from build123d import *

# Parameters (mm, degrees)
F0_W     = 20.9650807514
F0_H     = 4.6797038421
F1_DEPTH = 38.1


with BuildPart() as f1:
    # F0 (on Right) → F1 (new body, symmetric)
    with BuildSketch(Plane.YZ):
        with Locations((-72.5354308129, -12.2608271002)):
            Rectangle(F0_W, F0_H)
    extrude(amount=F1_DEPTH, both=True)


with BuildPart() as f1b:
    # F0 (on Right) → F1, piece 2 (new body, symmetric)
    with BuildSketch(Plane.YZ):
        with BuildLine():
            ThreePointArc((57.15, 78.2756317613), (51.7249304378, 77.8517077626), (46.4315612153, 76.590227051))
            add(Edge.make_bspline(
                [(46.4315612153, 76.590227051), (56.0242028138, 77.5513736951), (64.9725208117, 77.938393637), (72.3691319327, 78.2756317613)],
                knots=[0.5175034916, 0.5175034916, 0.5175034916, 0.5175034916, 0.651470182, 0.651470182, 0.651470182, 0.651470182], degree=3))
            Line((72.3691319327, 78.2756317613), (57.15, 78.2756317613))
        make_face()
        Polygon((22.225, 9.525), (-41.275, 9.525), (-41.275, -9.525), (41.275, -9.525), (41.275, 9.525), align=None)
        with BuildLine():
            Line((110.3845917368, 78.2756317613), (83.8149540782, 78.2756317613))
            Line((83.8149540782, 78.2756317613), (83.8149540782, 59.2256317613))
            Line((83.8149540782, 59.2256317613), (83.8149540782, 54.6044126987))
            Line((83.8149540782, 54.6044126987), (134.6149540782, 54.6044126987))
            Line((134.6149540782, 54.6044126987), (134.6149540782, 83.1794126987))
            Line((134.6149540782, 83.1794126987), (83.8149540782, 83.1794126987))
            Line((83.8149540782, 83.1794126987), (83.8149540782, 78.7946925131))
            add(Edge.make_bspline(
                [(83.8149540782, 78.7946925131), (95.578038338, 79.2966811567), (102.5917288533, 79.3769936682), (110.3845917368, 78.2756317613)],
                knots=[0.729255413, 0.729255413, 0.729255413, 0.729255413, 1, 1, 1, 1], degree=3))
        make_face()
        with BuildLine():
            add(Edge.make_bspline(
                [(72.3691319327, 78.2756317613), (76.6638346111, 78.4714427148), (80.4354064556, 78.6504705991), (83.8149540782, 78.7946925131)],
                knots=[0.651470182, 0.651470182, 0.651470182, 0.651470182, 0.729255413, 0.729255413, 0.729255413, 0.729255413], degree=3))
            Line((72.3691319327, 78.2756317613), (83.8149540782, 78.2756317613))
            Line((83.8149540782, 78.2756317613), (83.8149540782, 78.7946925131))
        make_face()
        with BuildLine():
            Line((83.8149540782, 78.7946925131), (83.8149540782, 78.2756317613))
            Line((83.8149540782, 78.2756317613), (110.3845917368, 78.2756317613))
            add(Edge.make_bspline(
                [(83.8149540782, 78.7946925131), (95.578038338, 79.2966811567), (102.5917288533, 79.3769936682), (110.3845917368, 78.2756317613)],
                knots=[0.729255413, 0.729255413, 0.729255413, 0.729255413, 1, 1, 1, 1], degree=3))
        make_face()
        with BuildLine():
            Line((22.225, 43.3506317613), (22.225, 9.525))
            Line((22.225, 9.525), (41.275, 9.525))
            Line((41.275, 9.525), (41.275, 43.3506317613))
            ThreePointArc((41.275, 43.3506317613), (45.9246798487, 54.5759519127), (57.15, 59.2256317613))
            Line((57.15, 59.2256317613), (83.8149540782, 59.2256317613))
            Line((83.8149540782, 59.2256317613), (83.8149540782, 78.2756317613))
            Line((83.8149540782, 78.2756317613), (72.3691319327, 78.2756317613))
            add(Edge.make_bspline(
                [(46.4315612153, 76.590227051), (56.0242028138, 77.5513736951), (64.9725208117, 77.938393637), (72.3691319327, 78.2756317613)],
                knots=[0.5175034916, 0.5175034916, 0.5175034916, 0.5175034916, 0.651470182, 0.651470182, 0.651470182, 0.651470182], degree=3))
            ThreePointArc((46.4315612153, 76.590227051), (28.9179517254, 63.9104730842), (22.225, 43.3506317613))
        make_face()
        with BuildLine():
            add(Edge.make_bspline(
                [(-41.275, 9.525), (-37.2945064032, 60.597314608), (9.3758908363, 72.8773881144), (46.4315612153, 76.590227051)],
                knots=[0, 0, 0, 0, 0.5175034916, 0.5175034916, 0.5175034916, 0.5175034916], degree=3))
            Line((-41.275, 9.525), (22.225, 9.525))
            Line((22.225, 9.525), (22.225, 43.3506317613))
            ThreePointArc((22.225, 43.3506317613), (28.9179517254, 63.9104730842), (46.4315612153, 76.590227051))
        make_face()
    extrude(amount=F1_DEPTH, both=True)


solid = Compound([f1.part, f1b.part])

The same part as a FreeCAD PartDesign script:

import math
import FreeCAD as App
import Part
import Sketcher

V = App.Vector
Q = App.Units.Quantity

doc = App.newDocument("Part")
body = doc.addObject("PartDesign::Body", "Body")

# Sketch on YZ plane
sketch1 = body.newObject("Sketcher::SketchObject", "Sketch")
sketch1.AttachmentSupport = (doc.getObject("YZ_Plane"), [""])
sketch1.MapMode = "FlatFace"
sketch1.addGeometry([
    Part.LineSegment(V(-83, -9.9, 0), V(-83, -14.6, 0)),
    Part.LineSegment(V(-83, -14.6, 0), V(-62.1, -14.6, 0)),
    Part.LineSegment(V(-62.1, -14.6, 0), V(-62.1, -9.9, 0)),
    Part.LineSegment(V(-62.1, -9.9, 0), V(-83, -9.9, 0)),
], False)
sketch1.addConstraint([
    Sketcher.Constraint("Coincident", 0, 2, 1, 1),
    Sketcher.Constraint("Coincident", 1, 2, 2, 1),
    Sketcher.Constraint("Coincident", 2, 2, 3, 1),
    Sketcher.Constraint("Coincident", 3, 2, 0, 1),
    Sketcher.Constraint("Vertical", 0),
    Sketcher.Constraint("Horizontal", 1),
    Sketcher.Constraint("Vertical", 2),
    Sketcher.Constraint("Horizontal", 3),
    Sketcher.Constraint("DistanceX", 1, 1, 1, 2, Q("20.965081 mm")),
    Sketcher.Constraint("DistanceY", 0, 2, 0, 1, Q("4.679704 mm")),
    Sketcher.Constraint("DistanceX", 0, 2, -1, 1, Q("83.017971 mm")),
    Sketcher.Constraint("DistanceY", 0, 2, -1, 1, Q("14.600679 mm")),
])
pad1 = body.newObject("PartDesign::Pad", "Pad")
pad1.Profile = sketch1
pad1.Length = Q("3 in")
pad1.Midplane = True
body2 = doc.addObject("PartDesign::Body", "Body001")

# Sketch on YZ plane
sketch2 = body2.newObject("Sketcher::SketchObject", "Sketch001")
sketch2.AttachmentSupport = (doc.getObject("YZ_Plane001"), [""])
sketch2.MapMode = "FlatFace"
sketch2.addGeometry([
    Part.LineSegment(V(72.369132, 78.275632, 0), V(57.15, 78.275632, 0)),  # 0
    Part.ArcOfCircle(Part.Circle(V(57.15, 43.350632, 0), V(0, 0, 1), 34.925), math.radians(90), math.radians(107.872434)),  # 1
    Part.BSplineCurve([V(-41.275, 9.525, 0), V(-37.294506, 60.597315, 0), V(9.375891, 72.877388, 0), V(46.431561, 76.590227, 0)], [4, 4], [0, 0.517503492], False, 3, [1, 1, 1, 1], False),  # 2
    Part.LineSegment(V(-41.275, 9.525, 0), V(-41.275, -9.525, 0)),  # 3
    Part.LineSegment(V(-41.275, -9.525, 0), V(41.275, -9.525, 0)),  # 4
    Part.LineSegment(V(41.275, -9.525, 0), V(41.275, 43.350632, 0)),  # 5
    Part.ArcOfCircle(Part.Circle(V(57.15, 43.350632, 0), V(0, 0, 1), 15.875), math.radians(90), math.radians(180)),  # 6
    Part.LineSegment(V(57.15, 59.225632, 0), V(83.814954, 59.225632, 0)),  # 7
    Part.LineSegment(V(83.814954, 59.225632, 0), V(83.814954, 54.604413, 0)),  # 8
    Part.LineSegment(V(83.814954, 54.604413, 0), V(134.614954, 54.604413, 0)),  # 9
    Part.LineSegment(V(134.614954, 54.604413, 0), V(134.614954, 83.179413, 0)),  # 10
    Part.LineSegment(V(134.614954, 83.179413, 0), V(83.814954, 83.179413, 0)),  # 11
    Part.LineSegment(V(83.814954, 83.179413, 0), V(83.814954, 78.794693, 0)),  # 12
    Part.BSplineCurve([V(72.369132, 78.275632, 0), V(76.663835, 78.471443, 0), V(80.435406, 78.650471, 0), V(83.814954, 78.794693, 0)], [4, 4], [0.651470182, 0.729255413], False, 3, [1, 1, 1, 1], False),  # 13
], False)
sketch2.addConstraint([
    Sketcher.Constraint("Block", 2),
    Sketcher.Constraint("Block", 13),
    Sketcher.Constraint("Tangent", 0, 2, 1, 1),
    Sketcher.Constraint("Coincident", 1, 2, 2, 2),
    Sketcher.Constraint("Coincident", 2, 1, 3, 1),
    Sketcher.Constraint("Coincident", 3, 2, 4, 1),
    Sketcher.Constraint("Coincident", 4, 2, 5, 1),
    Sketcher.Constraint("Tangent", 5, 2, 6, 2),
    Sketcher.Constraint("Tangent", 6, 1, 7, 1),
    Sketcher.Constraint("Coincident", 7, 2, 8, 1),
    Sketcher.Constraint("Coincident", 8, 2, 9, 1),
    Sketcher.Constraint("Coincident", 9, 2, 10, 1),
    Sketcher.Constraint("Coincident", 10, 2, 11, 1),
    Sketcher.Constraint("Coincident", 11, 2, 12, 1),
    Sketcher.Constraint("Coincident", 12, 2, 13, 2),
    Sketcher.Constraint("Coincident", 13, 1, 0, 1),
    Sketcher.Constraint("Horizontal", 0),
    Sketcher.Constraint("Vertical", 3),
    Sketcher.Constraint("Horizontal", 4),
    Sketcher.Constraint("Vertical", 5),
    Sketcher.Constraint("Horizontal", 7),
    Sketcher.Constraint("Vertical", 8),
    Sketcher.Constraint("Horizontal", 9),
    Sketcher.Constraint("Vertical", 10),
    Sketcher.Constraint("Horizontal", 11),
    Sketcher.Constraint("Vertical", 12),
    Sketcher.Constraint("Coincident", 6, 3, 1, 3),
    Sketcher.Constraint("Vertical", 8, 2, 11, 2),
    Sketcher.Constraint("DistanceX", 9, 1, 9, 2, Q("2 in")),
    Sketcher.Constraint("Radius", 1, Q("1.375 in")),
    Sketcher.Constraint("Radius", 6, Q("0.625 in")),
    Sketcher.Constraint("DistanceY", 3, 2, 3, 1, Q("0.75 in")),
    Sketcher.Constraint("DistanceY", 10, 1, 10, 2, Q("1.125 in")),
    Sketcher.Constraint("DistanceY", 8, 2, 8, 1, Q("4.621219 mm")),
])
pad2 = body2.newObject("PartDesign::Pad", "Pad001")
pad2.Profile = sketch2
pad2.Length = Q("3 in")
pad2.Midplane = True

doc.recompute()
